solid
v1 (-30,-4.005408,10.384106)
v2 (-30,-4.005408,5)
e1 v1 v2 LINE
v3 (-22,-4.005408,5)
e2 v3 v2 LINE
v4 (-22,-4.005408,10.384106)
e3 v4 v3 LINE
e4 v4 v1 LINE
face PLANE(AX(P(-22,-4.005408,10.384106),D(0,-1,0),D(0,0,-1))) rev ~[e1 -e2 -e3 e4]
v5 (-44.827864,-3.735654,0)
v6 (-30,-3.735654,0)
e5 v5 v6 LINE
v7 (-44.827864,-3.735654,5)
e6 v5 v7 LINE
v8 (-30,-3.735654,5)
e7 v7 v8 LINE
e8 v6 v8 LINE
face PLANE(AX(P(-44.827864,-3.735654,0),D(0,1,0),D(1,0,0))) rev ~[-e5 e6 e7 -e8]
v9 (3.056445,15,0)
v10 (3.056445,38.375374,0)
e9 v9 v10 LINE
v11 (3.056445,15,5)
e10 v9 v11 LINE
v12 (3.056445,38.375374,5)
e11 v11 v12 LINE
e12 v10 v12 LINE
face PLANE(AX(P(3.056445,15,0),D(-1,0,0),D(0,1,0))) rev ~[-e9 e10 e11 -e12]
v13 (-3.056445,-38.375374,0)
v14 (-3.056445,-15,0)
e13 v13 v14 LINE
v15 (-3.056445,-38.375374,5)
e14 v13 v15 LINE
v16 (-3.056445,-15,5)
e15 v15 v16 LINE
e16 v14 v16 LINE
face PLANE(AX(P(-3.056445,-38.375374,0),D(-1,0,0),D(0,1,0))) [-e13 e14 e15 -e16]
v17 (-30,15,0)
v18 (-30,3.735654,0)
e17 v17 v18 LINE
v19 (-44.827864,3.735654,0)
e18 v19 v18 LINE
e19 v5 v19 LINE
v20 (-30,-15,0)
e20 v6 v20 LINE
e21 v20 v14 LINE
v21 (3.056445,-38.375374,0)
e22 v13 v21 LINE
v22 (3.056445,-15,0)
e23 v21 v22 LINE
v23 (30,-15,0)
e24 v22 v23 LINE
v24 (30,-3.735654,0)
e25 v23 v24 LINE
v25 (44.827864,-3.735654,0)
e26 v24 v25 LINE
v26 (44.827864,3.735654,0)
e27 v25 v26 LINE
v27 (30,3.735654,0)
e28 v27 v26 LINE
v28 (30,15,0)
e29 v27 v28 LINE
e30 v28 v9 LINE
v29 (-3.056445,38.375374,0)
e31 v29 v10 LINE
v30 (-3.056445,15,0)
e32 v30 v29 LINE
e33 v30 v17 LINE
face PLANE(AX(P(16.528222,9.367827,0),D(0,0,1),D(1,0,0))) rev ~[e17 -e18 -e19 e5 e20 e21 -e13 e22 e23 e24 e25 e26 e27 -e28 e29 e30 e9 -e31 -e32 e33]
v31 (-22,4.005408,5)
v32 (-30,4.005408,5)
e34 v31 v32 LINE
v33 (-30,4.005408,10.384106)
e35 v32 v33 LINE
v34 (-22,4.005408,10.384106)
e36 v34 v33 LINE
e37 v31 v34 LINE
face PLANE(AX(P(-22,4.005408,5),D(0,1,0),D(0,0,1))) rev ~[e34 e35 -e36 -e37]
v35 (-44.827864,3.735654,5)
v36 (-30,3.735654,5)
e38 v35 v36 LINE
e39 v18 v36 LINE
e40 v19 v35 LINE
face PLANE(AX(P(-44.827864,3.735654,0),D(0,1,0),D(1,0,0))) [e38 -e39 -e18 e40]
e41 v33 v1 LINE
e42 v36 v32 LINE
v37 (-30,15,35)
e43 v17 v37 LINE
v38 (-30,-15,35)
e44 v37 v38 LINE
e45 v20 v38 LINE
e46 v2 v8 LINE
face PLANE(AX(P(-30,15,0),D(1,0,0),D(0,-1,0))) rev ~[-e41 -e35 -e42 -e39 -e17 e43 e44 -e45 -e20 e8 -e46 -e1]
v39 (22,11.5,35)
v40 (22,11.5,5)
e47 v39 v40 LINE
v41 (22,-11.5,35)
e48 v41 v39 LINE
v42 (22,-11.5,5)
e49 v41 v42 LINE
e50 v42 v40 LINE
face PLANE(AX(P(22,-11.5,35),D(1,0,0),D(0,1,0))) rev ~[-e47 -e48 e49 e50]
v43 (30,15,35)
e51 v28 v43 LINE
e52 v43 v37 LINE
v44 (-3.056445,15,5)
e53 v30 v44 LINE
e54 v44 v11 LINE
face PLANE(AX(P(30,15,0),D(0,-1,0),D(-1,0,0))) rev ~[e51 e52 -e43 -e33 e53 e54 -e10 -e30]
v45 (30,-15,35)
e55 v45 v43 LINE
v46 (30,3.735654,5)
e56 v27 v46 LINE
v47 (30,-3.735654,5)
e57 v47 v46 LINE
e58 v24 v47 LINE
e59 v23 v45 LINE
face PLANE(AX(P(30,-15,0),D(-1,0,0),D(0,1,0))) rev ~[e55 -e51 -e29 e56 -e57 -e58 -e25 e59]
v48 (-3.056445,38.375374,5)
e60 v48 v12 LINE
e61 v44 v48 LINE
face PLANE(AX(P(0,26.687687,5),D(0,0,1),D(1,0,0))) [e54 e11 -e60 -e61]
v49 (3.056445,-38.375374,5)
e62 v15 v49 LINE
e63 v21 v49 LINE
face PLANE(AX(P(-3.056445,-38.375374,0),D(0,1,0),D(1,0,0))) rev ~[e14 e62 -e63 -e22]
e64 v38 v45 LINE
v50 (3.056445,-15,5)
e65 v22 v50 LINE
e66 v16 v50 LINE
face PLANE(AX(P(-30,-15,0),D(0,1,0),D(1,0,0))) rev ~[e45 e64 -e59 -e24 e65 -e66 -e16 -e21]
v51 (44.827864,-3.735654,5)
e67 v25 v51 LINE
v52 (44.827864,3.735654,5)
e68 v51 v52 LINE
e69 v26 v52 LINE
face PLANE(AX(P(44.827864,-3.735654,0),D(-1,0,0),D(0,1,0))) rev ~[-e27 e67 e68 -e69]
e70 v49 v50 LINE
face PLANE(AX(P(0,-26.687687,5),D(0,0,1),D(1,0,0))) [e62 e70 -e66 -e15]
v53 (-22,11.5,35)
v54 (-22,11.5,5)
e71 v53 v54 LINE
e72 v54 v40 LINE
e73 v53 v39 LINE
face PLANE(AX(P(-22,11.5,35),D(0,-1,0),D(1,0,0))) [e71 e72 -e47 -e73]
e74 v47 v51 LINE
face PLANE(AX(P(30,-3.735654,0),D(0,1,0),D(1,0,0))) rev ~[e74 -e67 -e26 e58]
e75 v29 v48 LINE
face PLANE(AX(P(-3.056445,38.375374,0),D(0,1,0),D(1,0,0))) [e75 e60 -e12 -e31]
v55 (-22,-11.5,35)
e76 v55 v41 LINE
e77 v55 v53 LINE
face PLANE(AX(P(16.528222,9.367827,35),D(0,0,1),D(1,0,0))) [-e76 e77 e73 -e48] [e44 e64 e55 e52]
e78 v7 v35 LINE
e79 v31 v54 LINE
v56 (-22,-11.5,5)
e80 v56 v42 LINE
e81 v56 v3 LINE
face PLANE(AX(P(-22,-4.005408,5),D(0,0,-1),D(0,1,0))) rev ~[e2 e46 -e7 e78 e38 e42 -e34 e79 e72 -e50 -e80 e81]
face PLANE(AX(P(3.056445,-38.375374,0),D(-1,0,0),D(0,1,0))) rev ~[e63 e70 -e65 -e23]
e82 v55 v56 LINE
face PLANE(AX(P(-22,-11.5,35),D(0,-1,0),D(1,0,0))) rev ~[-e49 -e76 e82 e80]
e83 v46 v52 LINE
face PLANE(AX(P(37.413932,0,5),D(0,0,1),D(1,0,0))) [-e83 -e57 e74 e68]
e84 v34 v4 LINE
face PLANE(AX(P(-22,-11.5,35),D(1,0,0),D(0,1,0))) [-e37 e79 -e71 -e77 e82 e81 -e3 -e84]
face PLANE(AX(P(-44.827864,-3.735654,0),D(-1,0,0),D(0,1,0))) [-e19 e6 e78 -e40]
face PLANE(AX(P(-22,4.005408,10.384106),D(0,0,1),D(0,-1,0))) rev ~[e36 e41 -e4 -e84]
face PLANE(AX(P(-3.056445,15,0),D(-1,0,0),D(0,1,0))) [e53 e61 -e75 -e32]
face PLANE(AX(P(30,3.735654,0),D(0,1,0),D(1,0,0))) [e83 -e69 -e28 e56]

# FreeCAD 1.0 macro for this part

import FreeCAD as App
import Part
import Sketcher
from FreeCAD import Vector
Q = App.Units.Quantity

doc = App.newDocument("Part")
params = doc.addObject("Spreadsheet::Sheet", "Params")
for row, (alias, value) in enumerate([
    ("sketch1_width", "60 mm"),
    ("sketch1_height", "30 mm"),
    ("pad1_length", "35 mm"),
    ("pad2_length", "5 mm"),
    ("sketch3_width", "44 mm"),
    ("sketch3_height", "23 mm"),
    ("pocket1_length", "30 mm"),
    ("pocket2_length", "25 mm"),
], start=1):
    params.set(f"A{row}", alias)
    params.set(f"B{row}", "=" + value)
    params.setAlias(f"B{row}", alias)

body = doc.addObject("PartDesign::Body", "Body")

sketch1 = body.newObject("Sketcher::SketchObject", "Sketch")
sketch1.AttachmentSupport = (doc.getObject("XY_Plane"), [""])
sketch1.MapMode = "FlatFace"
sketch1.addGeometry(Part.LineSegment(Vector(-30, 15, 0), Vector(-30, -15, 0)), False)
sketch1.addGeometry(Part.LineSegment(Vector(-30, -15, 0), Vector(30, -15, 0)), False)
sketch1.addGeometry(Part.LineSegment(Vector(30, -15, 0), Vector(30, 15, 0)), False)
sketch1.addGeometry(Part.LineSegment(Vector(30, 15, 0), Vector(-30, 15, 0)), False)
sketch1.addConstraint(Sketcher.Constraint("Coincident", 0, 2, 1, 1))
sketch1.addConstraint(Sketcher.Constraint("Coincident", 1, 2, 2, 1))
sketch1.addConstraint(Sketcher.Constraint("Coincident", 2, 2, 3, 1))
sketch1.addConstraint(Sketcher.Constraint("Coincident", 3, 2, 0, 1))
sketch1.addConstraint(Sketcher.Constraint("Vertical", 0))
sketch1.addConstraint(Sketcher.Constraint("Horizontal", 1))
sketch1.addConstraint(Sketcher.Constraint("Vertical", 2))
sketch1.addConstraint(Sketcher.Constraint("Horizontal", 3))
sketch1.addConstraint(Sketcher.Constraint("Symmetric", 0, 2, 2, 2, -1, 1))
sketch1.addConstraint(Sketcher.Constraint("DistanceX", 1, 1, 1, 2, Q("60 mm")))
sketch1.addConstraint(Sketcher.Constraint("DistanceY", 0, 2, 0, 1, Q("30 mm")))
sketch1.setExpression("Constraints[9]", "Params.sketch1_width")
sketch1.setExpression("Constraints[10]", "Params.sketch1_height")
pad1 = body.newObject("PartDesign::Pad", "Pad")
pad1.Profile = sketch1
pad1.setExpression("Length", "Params.pad1_length")

sketch2 = body.newObject("Sketcher::SketchObject", "Sketch001")
sketch2.AttachmentSupport = (doc.getObject("XY_Plane"), [""])
sketch2.MapMode = "FlatFace"
sketch2.addGeometry(Part.LineSegment(Vector(-3, 38, 0), Vector(-3, 15, 0)), False)
sketch2.addGeometry(Part.LineSegment(Vector(-3, 15, 0), Vector(3, 15, 0)), False)
sketch2.addGeometry(Part.LineSegment(Vector(3, 15, 0), Vector(3, 38, 0)), False)
sketch2.addGeometry(Part.LineSegment(Vector(3, 38, 0), Vector(-3, 38, 0)), False)
sketch2.addGeometry(Part.LineSegment(Vector(30, 4, 0), Vector(30, -4, 0)), False)
sketch2.addGeometry(Part.LineSegment(Vector(30, -4, 0), Vector(45, -4, 0)), False)
sketch2.addGeometry(Part.LineSegment(Vector(45, -4, 0), Vector(45, 4, 0)), False)
sketch2.addGeometry(Part.LineSegment(Vector(45, 4, 0), Vector(30, 4, 0)), False)
sketch2.addGeometry(Part.LineSegment(Vector(-45, 4, 0), Vector(-45, -4, 0)), False)
sketch2.addGeometry(Part.LineSegment(Vector(-45, -4, 0), Vector(-30, -4, 0)), False)
sketch2.addGeometry(Part.LineSegment(Vector(-30, -4, 0), Vector(-30, 4, 0)), False)
sketch2.addGeometry(Part.LineSegment(Vector(-30, 4, 0), Vector(-45, 4, 0)), False)
sketch2.addGeometry(Part.LineSegment(Vector(-3, -15, 0), Vector(-3, -38, 0)), False)
sketch2.addGeometry(Part.LineSegment(Vector(-3, -38, 0), Vector(3, -38, 0)), False)
sketch2.addGeometry(Part.LineSegment(Vector(3, -38, 0), Vector(3, -15, 0)), False)
sketch2.addGeometry(Part.LineSegment(Vector(3, -15, 0), Vector(-3, -15, 0)), False)
sketch2.addConstraint(Sketcher.Constraint("Coincident", 0, 2, 1, 1))
sketch2.addConstraint(Sketcher.Constraint("Coincident", 1, 2, 2, 1))
sketch2.addConstraint(Sketcher.Constraint("Coincident", 2, 2, 3, 1))
sketch2.addConstraint(Sketcher.Constraint("Coincident", 3, 2, 0, 1))
sketch2.addConstraint(Sketcher.Constraint("Coincident", 4, 2, 5, 1))
sketch2.addConstraint(Sketcher.Constraint("Coincident", 5, 2, 6, 1))
sketch2.addConstraint(Sketcher.Constraint("Coincident", 6, 2, 7, 1))
sketch2.addConstraint(Sketcher.Constraint("Coincident", 7, 2, 4, 1))
sketch2.addConstraint(Sketcher.Constraint("Coincident", 8, 2, 9, 1))
sketch2.addConstraint(Sketcher.Constraint("Coincident", 9, 2, 10, 1))
sketch2.addConstraint(Sketcher.Constraint("Coincident", 10, 2, 11, 1))
sketch2.addConstraint(Sketcher.Constraint("Coincident", 11, 2, 8, 1))
sketch2.addConstraint(Sketcher.Constraint("Coincident", 12, 2, 13, 1))
sketch2.addConstraint(Sketcher.Constraint("Coincident", 13, 2, 14, 1))
sketch2.addConstraint(Sketcher.Constraint("Coincident", 14, 2, 15, 1))
sketch2.addConstraint(Sketcher.Constraint("Coincident", 15, 2, 12, 1))
sketch2.addConstraint(Sketcher.Constraint("Vertical", 0))
sketch2.addConstraint(Sketcher.Constraint("Horizontal", 1))
sketch2.addConstraint(Sketcher.Constraint("Vertical", 2))
sketch2.addConstraint(Sketcher.Constraint("Horizontal", 3))
sketch2.addConstraint(Sketcher.Constraint("Vertical", 4))
sketch2.addConstraint(Sketcher.Constraint("Horizontal", 5))
sketch2.addConstraint(Sketcher.Constraint("Vertical", 6))
sketch2.addConstraint(Sketcher.Constraint("Horizontal", 7))
sketch2.addConstraint(Sketcher.Constraint("Vertical", 8))
sketch2.addConstraint(Sketcher.Constraint("Horizontal", 9))
sketch2.addConstraint(Sketcher.Constraint("Vertical", 10))
sketch2.addConstraint(Sketcher.Constraint("Horizontal", 11))
sketch2.addConstraint(Sketcher.Constraint("Vertical", 12))
sketch2.addConstraint(Sketcher.Constraint("Horizontal", 13))
sketch2.addConstraint(Sketcher.Constraint("Vertical", 14))
sketch2.addConstraint(Sketcher.Constraint("Horizontal", 15))
sketch2.addConstraint(Sketcher.Constraint("Symmetric", 6, 2, 8, 2, -1, 1))
sketch2.addConstraint(Sketcher.Constraint("Symmetric", 4, 2, 10, 2, -1, 1))
sketch2.addConstraint(Sketcher.Constraint("Symmetric", 2, 2, 12, 2, -1, 1))
sketch2.addConstraint(Sketcher.Constraint("Symmetric", 0, 2, 14, 2, -1, 1))
sketch2.addConstraint(Sketcher.Constraint("Horizontal", 5, 2, 8, 2))
sketch2.addConstraint(Sketcher.Constraint("Vertical", 3, 2, 12, 2))
sketch2.addConstraint(Sketcher.Constraint("DistanceY", -1, 1, 0, 2, Q("15 mm")))
sketch2.addConstraint(Sketcher.Constraint("DistanceX", -1, 1, 4, 2, Q("30 mm")))
sketch2.addConstraint(Sketcher.Constraint("DistanceX", 1, 1, 1, 2, Q("6.11289 mm")))
sketch2.addConstraint(Sketcher.Constraint("DistanceY", 4, 2, 4, 1, Q("7.471308 mm")))
sketch2.addConstraint(Sketcher.Constraint("DistanceX", 5, 1, 5, 2, Q("14.827864 mm")))
sketch2.addConstraint(Sketcher.Constraint("DistanceY", 0, 2, 0, 1, Q("23.375374 mm")))
pad2 = body.newObject("PartDesign::Pad", "Pad001")
pad2.Profile = sketch2
pad2.setExpression("Length", "Params.pad2_length")

sketch3 = body.newObject("Sketcher::SketchObject", "Sketch002")
sketch3.AttachmentSupport = (doc.getObject("XY_Plane"), [""])
sketch3.MapMode = "FlatFace"
sketch3.AttachmentOffset = App.Placement(Vector(0, 0, 35), App.Rotation())
sketch3.addGeometry(Part.LineSegment(Vector(-22, 12, 0), Vector(-22, -12, 0)), False)
sketch3.addGeometry(Part.LineSegment(Vector(-22, -12, 0), Vector(22, -12, 0)), False)
sketch3.addGeometry(Part.LineSegment(Vector(22, -12, 0), Vector(22, 12, 0)), False)
sketch3.addGeometry(Part.LineSegment(Vector(22, 12, 0), Vector(-22, 12, 0)), False)
sketch3.addConstraint(Sketcher.Constraint("Coincident", 0, 2, 1, 1))
sketch3.addConstraint(Sketcher.Constraint("Coincident", 1, 2, 2, 1))
sketch3.addConstraint(Sketcher.Constraint("Coincident", 2, 2, 3, 1))
sketch3.addConstraint(Sketcher.Constraint("Coincident", 3, 2, 0, 1))
sketch3.addConstraint(Sketcher.Constraint("Vertical", 0))
sketch3.addConstraint(Sketcher.Constraint("Horizontal", 1))
sketch3.addConstraint(Sketcher.Constraint("Vertical", 2))
sketch3.addConstraint(Sketcher.Constraint("Horizontal", 3))
sketch3.addConstraint(Sketcher.Constraint("Symmetric", 0, 2, 2, 2, -1, 1))
sketch3.addConstraint(Sketcher.Constraint("DistanceX", 1, 1, 1, 2, Q("44 mm")))
sketch3.addConstraint(Sketcher.Constraint("DistanceY", 0, 2, 0, 1, Q("23 mm")))
sketch3.setExpression("Constraints[9]", "Params.sketch3_width")
sketch3.setExpression("Constraints[10]", "Params.sketch3_height")
pocket1 = body.newObject("PartDesign::Pocket", "Pocket")
pocket1.Profile = sketch3
pocket1.setExpression("Length", "Params.pocket1_length")

sketch4 = body.newObject("Sketcher::SketchObject", "Sketch003")
sketch4.AttachmentSupport = (doc.getObject("YZ_Plane"), [""])
sketch4.MapMode = "FlatFace"
sketch4.AttachmentOffset = App.Placement(Vector(0, 0, -22), App.Rotation())
sketch4.addGeometry(Part.LineSegment(Vector(-4, 5, 0), Vector(4, 5, 0)), False)
sketch4.addGeometry(Part.LineSegment(Vector(4, 5, 0), Vector(4, 10, 0)), False)
sketch4.addGeometry(Part.LineSegment(Vector(4, 10, 0), Vector(-4, 10, 0)), False)
sketch4.addGeometry(Part.LineSegment(Vector(-4, 10, 0), Vector(-4, 5, 0)), False)
sketch4.addConstraint(Sketcher.Constraint("Coincident", 0, 2, 1, 1))
sketch4.addConstraint(Sketcher.Constraint("Coincident", 1, 2, 2, 1))
sketch4.addConstraint(Sketcher.Constraint("Coincident", 2, 2, 3, 1))
sketch4.addConstraint(Sketcher.Constraint("Coincident", 3, 2, 0, 1))
sketch4.addConstraint(Sketcher.Constraint("Horizontal", 0))
sketch4.addConstraint(Sketcher.Constraint("Vertical", 1))
sketch4.addConstraint(Sketcher.Constraint("Horizontal", 2))
sketch4.addConstraint(Sketcher.Constraint("Vertical", 3))
sketch4.addConstraint(Sketcher.Constraint("DistanceY", -1, 1, 0, 2, Q("5 mm")))
sketch4.addConstraint(Sketcher.Constraint("DistanceX", 0, 1, 0, 2, Q("8.010817 mm")))
sketch4.addConstraint(Sketcher.Constraint("DistanceY", 1, 1, 1, 2, Q("5.384106 mm")))
sketch4.addConstraint(Sketcher.Constraint("DistanceX", -1, 1, 0, 2, Q("4.005408 mm")))
pocket2 = body.newObject("PartDesign::Pocket", "Pocket001")
pocket2.Profile = sketch4
pocket2.setExpression("Length", "Params.pocket2_length")

doc.recompute()
